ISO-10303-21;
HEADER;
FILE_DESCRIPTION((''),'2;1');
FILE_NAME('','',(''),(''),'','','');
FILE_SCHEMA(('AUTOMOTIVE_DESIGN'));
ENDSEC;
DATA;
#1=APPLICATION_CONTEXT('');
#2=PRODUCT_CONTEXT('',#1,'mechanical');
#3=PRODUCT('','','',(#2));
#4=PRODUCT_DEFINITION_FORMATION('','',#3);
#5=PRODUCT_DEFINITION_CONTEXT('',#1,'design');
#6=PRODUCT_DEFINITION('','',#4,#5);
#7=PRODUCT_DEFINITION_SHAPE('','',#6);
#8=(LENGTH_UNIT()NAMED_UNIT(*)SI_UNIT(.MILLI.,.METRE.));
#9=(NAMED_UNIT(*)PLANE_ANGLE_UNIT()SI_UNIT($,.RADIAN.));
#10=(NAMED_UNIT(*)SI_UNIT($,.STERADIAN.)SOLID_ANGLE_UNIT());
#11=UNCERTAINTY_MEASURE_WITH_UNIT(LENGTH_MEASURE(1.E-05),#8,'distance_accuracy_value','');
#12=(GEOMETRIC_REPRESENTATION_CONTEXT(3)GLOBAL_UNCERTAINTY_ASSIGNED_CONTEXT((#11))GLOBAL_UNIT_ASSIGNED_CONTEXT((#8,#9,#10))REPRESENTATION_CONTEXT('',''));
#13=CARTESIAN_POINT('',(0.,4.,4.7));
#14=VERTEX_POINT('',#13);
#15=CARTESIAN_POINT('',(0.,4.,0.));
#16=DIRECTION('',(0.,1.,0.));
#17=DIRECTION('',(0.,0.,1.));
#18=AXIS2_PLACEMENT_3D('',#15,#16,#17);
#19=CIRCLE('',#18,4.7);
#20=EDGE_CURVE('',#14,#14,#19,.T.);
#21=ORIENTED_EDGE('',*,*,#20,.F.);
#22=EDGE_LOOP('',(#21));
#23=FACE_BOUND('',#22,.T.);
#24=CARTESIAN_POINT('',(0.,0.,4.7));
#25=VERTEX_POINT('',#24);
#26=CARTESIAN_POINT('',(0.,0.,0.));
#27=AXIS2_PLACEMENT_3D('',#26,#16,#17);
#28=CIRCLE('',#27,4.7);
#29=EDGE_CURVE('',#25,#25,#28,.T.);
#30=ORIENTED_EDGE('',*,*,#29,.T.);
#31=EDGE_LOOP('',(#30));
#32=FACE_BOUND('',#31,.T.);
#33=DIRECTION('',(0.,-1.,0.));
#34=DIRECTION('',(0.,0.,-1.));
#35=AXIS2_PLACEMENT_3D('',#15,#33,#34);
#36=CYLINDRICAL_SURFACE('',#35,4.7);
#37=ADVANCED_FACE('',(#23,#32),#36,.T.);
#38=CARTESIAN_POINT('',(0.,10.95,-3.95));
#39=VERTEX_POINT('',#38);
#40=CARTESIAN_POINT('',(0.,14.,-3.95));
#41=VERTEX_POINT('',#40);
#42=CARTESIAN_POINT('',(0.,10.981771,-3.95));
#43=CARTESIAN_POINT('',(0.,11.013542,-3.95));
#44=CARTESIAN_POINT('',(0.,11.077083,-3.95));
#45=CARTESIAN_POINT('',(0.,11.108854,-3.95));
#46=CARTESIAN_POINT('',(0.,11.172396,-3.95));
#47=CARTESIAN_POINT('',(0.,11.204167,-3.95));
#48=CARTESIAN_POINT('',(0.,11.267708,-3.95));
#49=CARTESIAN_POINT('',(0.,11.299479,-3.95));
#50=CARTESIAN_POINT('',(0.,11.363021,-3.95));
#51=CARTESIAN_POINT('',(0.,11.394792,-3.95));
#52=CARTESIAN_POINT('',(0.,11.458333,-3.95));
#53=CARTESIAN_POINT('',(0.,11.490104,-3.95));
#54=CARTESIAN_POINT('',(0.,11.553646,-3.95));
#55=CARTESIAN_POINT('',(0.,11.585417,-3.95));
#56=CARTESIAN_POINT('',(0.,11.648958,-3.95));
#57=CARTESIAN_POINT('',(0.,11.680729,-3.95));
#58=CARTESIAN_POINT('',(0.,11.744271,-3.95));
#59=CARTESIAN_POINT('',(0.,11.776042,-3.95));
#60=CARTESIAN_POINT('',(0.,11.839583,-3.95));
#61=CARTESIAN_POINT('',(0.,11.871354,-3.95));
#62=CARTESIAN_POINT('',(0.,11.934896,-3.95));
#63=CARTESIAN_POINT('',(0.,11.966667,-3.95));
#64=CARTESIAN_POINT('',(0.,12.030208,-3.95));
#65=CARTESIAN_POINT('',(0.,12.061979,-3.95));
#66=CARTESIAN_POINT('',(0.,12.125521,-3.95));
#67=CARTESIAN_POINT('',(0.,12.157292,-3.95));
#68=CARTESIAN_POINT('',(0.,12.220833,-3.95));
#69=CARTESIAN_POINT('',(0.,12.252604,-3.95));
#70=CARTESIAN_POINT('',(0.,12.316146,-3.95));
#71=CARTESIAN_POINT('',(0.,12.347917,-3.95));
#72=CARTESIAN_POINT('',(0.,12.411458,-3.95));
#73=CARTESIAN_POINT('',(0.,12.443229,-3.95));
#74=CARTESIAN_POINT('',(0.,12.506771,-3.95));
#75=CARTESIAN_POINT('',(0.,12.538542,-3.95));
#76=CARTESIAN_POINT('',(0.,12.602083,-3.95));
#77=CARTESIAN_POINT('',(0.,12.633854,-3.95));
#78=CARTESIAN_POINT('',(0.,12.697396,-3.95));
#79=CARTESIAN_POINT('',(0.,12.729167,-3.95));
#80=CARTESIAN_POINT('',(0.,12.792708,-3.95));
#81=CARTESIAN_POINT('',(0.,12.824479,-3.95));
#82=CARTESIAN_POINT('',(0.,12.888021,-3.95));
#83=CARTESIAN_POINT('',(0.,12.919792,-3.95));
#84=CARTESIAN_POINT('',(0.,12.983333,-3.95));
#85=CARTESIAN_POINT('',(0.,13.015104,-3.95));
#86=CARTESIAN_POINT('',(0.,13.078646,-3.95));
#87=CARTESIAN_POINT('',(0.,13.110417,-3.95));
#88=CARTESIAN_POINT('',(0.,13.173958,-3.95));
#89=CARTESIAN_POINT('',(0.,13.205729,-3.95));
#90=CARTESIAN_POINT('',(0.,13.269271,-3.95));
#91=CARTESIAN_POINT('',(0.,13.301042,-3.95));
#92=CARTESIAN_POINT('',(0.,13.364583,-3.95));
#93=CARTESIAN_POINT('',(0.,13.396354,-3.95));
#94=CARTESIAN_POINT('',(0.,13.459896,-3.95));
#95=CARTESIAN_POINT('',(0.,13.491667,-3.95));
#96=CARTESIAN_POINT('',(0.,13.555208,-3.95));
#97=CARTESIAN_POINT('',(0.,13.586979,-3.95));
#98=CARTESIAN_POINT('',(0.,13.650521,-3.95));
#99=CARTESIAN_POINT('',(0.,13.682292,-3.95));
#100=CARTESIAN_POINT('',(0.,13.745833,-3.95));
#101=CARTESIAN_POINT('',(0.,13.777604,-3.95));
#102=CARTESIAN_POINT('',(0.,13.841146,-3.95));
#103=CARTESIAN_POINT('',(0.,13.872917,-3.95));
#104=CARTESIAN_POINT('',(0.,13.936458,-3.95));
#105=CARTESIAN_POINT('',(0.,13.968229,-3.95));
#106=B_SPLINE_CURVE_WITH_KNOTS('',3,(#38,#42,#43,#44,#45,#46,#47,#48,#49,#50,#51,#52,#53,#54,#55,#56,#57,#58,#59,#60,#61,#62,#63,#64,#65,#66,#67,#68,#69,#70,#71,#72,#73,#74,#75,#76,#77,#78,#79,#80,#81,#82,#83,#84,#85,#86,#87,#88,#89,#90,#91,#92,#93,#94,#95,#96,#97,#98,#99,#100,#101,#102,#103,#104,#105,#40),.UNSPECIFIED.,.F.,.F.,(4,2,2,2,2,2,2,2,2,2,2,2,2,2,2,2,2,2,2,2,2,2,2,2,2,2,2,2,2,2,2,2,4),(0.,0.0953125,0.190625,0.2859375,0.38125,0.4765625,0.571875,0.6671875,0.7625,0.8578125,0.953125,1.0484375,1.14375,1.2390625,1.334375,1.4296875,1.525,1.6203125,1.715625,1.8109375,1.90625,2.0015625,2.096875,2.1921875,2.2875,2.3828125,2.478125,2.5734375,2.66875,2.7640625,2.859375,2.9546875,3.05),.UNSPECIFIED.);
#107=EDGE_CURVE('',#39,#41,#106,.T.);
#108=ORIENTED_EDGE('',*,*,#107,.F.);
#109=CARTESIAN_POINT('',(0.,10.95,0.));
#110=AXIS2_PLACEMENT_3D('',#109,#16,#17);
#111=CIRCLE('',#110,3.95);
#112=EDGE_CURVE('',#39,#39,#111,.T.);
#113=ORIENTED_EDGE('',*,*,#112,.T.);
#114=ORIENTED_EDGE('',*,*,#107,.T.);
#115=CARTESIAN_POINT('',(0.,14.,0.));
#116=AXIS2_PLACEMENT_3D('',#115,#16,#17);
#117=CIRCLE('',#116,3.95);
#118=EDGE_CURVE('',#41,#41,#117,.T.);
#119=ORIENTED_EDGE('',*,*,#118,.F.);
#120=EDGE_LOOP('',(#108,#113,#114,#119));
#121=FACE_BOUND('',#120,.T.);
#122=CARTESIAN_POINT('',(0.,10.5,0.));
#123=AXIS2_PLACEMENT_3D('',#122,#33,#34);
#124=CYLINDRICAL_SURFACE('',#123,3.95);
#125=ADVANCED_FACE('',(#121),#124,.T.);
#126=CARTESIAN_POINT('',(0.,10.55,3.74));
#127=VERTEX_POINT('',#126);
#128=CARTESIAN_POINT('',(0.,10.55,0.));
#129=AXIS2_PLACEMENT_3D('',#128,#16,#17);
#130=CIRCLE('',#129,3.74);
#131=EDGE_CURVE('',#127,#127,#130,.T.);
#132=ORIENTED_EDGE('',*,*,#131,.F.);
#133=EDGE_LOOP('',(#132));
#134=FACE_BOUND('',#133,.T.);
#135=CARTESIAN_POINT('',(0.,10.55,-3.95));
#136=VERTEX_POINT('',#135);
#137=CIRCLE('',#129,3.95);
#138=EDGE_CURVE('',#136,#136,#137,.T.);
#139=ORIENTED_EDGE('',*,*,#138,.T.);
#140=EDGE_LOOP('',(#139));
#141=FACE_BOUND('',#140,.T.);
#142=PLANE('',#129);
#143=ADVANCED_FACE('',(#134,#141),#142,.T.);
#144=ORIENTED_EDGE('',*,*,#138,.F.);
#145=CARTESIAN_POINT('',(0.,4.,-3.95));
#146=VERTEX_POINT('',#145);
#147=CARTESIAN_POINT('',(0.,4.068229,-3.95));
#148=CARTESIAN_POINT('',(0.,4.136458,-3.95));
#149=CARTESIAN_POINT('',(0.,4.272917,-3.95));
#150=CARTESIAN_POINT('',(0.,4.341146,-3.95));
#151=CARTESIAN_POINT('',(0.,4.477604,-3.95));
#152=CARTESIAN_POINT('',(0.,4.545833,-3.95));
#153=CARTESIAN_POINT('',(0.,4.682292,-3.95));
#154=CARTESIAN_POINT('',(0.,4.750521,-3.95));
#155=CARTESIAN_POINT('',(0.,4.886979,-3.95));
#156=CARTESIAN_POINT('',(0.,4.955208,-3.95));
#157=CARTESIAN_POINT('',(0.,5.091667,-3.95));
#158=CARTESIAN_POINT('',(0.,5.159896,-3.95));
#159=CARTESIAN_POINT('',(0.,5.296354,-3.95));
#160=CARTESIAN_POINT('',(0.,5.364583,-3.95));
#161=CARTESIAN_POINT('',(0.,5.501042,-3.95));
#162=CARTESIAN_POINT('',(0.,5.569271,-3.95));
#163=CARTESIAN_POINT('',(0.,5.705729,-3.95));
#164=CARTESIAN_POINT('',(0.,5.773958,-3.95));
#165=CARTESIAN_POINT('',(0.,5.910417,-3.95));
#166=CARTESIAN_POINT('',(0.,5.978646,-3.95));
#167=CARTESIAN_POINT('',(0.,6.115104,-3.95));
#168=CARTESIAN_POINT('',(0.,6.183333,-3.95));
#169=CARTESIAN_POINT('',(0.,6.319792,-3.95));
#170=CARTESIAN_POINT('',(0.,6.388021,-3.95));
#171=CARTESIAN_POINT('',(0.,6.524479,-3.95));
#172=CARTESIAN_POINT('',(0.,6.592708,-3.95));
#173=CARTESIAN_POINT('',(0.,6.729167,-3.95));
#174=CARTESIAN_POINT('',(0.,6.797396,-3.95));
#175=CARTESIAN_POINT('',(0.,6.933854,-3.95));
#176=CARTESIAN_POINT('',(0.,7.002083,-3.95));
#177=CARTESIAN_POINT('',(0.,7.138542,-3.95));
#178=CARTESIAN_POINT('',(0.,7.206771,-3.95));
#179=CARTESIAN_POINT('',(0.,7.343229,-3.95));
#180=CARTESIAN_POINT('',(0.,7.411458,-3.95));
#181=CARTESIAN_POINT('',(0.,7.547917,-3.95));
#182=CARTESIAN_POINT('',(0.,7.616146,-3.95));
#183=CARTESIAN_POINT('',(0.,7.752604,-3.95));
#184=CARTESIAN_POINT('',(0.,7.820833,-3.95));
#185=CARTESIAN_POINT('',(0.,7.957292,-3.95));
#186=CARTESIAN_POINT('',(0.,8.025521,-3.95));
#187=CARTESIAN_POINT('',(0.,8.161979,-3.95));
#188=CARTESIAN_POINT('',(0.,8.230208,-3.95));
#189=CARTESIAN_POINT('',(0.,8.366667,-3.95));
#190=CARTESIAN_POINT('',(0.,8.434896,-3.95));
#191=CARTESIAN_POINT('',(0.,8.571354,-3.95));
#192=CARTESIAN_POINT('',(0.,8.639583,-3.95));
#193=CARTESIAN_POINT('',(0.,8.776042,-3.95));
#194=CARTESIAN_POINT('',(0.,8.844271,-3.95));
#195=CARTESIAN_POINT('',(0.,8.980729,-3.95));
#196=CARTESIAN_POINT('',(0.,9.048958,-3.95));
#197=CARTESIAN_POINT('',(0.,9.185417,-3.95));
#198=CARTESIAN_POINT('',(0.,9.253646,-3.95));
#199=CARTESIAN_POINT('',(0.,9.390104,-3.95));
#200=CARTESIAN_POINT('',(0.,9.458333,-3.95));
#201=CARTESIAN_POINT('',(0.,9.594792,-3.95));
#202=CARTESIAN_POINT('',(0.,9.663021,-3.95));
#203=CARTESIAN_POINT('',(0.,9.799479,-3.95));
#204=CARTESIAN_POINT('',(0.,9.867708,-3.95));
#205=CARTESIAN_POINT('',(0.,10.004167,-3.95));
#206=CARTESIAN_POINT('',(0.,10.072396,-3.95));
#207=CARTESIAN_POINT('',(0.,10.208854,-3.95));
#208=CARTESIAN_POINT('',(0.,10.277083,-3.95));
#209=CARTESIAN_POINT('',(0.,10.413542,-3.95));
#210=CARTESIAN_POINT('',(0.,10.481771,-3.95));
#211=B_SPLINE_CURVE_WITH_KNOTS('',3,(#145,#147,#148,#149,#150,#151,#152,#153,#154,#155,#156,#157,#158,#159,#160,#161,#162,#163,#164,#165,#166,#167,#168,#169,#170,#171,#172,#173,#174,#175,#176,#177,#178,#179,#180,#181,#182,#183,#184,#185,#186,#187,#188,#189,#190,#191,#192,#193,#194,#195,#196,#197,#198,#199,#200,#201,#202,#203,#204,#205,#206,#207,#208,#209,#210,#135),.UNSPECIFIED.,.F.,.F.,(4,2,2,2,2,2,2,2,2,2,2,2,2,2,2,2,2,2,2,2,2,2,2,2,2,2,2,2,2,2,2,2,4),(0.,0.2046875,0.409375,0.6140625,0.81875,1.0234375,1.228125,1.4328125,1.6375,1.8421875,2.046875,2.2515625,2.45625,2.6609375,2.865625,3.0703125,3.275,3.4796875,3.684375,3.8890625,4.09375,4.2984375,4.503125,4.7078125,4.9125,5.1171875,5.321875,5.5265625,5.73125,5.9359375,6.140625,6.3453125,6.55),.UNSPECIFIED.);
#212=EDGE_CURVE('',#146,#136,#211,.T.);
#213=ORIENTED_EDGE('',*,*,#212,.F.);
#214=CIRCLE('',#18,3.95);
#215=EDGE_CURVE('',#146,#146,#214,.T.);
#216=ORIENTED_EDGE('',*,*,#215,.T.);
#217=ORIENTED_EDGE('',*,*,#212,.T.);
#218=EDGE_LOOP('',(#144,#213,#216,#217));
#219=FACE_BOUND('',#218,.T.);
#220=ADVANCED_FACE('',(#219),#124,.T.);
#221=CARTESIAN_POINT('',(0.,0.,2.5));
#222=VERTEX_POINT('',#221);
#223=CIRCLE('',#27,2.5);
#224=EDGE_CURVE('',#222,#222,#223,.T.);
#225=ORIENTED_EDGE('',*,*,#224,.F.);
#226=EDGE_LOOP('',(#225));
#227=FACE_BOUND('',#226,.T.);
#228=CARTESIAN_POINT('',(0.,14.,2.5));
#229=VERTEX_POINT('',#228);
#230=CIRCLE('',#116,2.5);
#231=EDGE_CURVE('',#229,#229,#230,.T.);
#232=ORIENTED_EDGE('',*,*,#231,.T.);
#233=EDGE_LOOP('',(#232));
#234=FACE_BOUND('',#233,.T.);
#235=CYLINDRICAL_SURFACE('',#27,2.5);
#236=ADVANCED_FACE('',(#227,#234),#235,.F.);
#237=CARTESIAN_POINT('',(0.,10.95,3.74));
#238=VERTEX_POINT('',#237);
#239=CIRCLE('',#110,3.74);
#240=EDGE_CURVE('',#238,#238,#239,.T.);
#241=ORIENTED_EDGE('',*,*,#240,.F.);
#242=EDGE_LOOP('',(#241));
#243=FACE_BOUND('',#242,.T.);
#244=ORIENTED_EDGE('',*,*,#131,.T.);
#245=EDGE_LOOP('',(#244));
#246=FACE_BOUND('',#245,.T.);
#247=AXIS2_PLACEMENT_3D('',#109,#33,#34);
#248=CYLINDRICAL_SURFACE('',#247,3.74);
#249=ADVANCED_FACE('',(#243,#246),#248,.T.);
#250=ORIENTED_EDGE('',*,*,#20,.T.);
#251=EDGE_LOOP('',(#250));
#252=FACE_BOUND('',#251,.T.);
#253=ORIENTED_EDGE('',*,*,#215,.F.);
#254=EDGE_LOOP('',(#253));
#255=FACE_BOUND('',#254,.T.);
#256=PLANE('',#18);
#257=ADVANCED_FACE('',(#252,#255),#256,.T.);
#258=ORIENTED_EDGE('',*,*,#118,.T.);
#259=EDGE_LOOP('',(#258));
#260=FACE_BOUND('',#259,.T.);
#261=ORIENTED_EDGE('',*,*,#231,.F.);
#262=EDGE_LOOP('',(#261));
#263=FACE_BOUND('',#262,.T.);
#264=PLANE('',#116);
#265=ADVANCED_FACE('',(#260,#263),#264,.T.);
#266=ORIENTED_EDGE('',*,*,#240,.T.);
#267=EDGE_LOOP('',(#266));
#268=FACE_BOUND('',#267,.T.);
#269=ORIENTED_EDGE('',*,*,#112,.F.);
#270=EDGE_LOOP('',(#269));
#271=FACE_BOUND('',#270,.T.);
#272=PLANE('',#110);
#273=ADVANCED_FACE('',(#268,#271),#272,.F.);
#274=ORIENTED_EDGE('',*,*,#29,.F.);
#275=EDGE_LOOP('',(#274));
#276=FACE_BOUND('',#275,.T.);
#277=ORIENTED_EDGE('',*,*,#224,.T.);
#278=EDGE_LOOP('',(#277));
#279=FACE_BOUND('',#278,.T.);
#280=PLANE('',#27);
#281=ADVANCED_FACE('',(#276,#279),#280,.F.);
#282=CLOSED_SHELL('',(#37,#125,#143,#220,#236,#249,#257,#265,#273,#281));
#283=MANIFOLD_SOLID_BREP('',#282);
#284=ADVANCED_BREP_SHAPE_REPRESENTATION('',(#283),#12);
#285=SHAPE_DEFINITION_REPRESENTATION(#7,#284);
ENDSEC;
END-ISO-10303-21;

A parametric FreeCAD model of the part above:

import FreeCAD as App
import Part
import Sketcher

doc = App.newDocument("Part")
body = doc.addObject("PartDesign::Body", "Body")

# Sketch on XZ plane
sketch1 = body.newObject("Sketcher::SketchObject", "Sketch")
sketch1.AttachmentSupport = (doc.getObject("XZ_Plane"), [""])
sketch1.MapMode = "FlatFace"
sketch1.addGeometry(Part.Circle(App.Vector(0, 0, 0), App.Vector(0, 0, 1), 4.7), False)
sketch1.addConstraint([
    Sketcher.Constraint("Coincident", 0, 3, -1, 1),
    Sketcher.Constraint("Diameter", 0, 9.4),
])
pad1 = body.newObject("PartDesign::Pad", "Pad")
pad1.Profile = sketch1
pad1.Length = 4
pad1.Reversed = True

# Sketch on XZ plane
sketch2 = body.newObject("Sketcher::SketchObject", "Sketch001")
sketch2.AttachmentSupport = (doc.getObject("XZ_Plane"), [""])
sketch2.MapMode = "FlatFace"
sketch2.AttachmentOffset = App.Placement(App.Vector(0, 0, -4), App.Rotation())
sketch2.addGeometry(Part.Circle(App.Vector(0, 0, 0), App.Vector(0, 0, 1), 4), False)
sketch2.addConstraint([
    Sketcher.Constraint("Coincident", 0, 3, -1, 1),
    Sketcher.Constraint("Diameter", 0, 7.9),
])
pad2 = body.newObject("PartDesign::Pad", "Pad001")
pad2.Profile = sketch2
pad2.Length = 6.5
pad2.Reversed = True

# Sketch on XZ plane
sketch3 = body.newObject("Sketcher::SketchObject", "Sketch002")
sketch3.AttachmentSupport = (doc.getObject("XZ_Plane"), [""])
sketch3.MapMode = "FlatFace"
sketch3.AttachmentOffset = App.Placement(App.Vector(0, 0, -10.5), App.Rotation())
sketch3.addGeometry(Part.Circle(App.Vector(0, 0, 0), App.Vector(0, 0, 1), 4), False)
sketch3.addConstraint([
    Sketcher.Constraint("Coincident", 0, 3, -1, 1),
    Sketcher.Constraint("Diameter", 0, 7.9),
])
pad3 = body.newObject("PartDesign::Pad", "Pad002")
pad3.Profile = sketch3
pad3.Length = 1
pad3.Reversed = True

# Sketch on XZ plane
sketch4 = body.newObject("Sketcher::SketchObject", "Sketch003")
sketch4.AttachmentSupport = (doc.getObject("XZ_Plane"), [""])
sketch4.MapMode = "FlatFace"
sketch4.AttachmentOffset = App.Placement(App.Vector(0, 0, -11.5), App.Rotation())
sketch4.addGeometry(Part.Circle(App.Vector(0, 0, 0), App.Vector(0, 0, 1), 4), False)
sketch4.addConstraint([
    Sketcher.Constraint("Coincident", 0, 3, -1, 1),
    Sketcher.Constraint("Diameter", 0, 7.9),
])
pad4 = body.newObject("PartDesign::Pad", "Pad003")
pad4.Profile = sketch4
pad4.Length = 2.5
pad4.Reversed = True

# Sketch on XZ plane
sketch5 = body.newObject("Sketcher::SketchObject", "Sketch004")
sketch5.AttachmentSupport = (doc.getObject("XZ_Plane"), [""])
sketch5.MapMode = "FlatFace"
sketch5.AttachmentOffset = App.Placement(App.Vector(0, 0, -14), App.Rotation())
sketch5.addGeometry(Part.Circle(App.Vector(0, 0, 0), App.Vector(0, 0, 1), 2.5), False)
sketch5.addConstraint([
    Sketcher.Constraint("Coincident", 0, 3, -1, 1),
    Sketcher.Constraint("Diameter", 0, 5.0),
])
pocket1 = body.newObject("PartDesign::Pocket", "Pocket")
pocket1.Profile = sketch5
pocket1.Type = "ThroughAll"
pocket1.Reversed = True

# Sketch on XZ plane
sketch6 = body.newObject("Sketcher::SketchObject", "Sketch005")
sketch6.AttachmentSupport = (doc.getObject("XZ_Plane"), [""])
sketch6.MapMode = "FlatFace"
sketch6.AttachmentOffset = App.Placement(App.Vector(0, 0, -10.75), App.Rotation())
sketch6.addGeometry([
    Part.LineSegment(App.Vector(-7.6, -7.6, 0), App.Vector(-7.6, 7.6, 0)),  # 0
    Part.LineSegment(App.Vector(-7.6, 7.6, 0), App.Vector(7.6, 7.6, 0)),  # 1
    Part.LineSegment(App.Vector(7.6, 7.6, 0), App.Vector(7.6, -7.6, 0)),  # 2
    Part.LineSegment(App.Vector(7.6, -7.6, 0), App.Vector(-7.6, -7.6, 0)),  # 3
    Part.Circle(App.Vector(0, 0, 0), App.Vector(0, 0, 1), 3.7),  # 4
], False)
sketch6.addConstraint([
    Sketcher.Constraint("Coincident", 0, 2, 1, 1),
    Sketcher.Constraint("Coincident", 1, 2, 2, 1),
    Sketcher.Constraint("Coincident", 2, 2, 3, 1),
    Sketcher.Constraint("Coincident", 3, 2, 0, 1),
    Sketcher.Constraint("Vertical", 0),
    Sketcher.Constraint("Horizontal", 1),
    Sketcher.Constraint("Vertical", 2),
    Sketcher.Constraint("Horizontal", 3),
    Sketcher.Constraint("Coincident", 4, 3, -1, 1),
    Sketcher.Constraint("Symmetric", 0, 2, 2, 2, -1, 1),
    Sketcher.Constraint("Equal", 3, 0),
    Sketcher.Constraint("Diameter", 4, 7.48),
    Sketcher.Constraint("DistanceX", 1, 1, 1, 2, 15.262),
])
pocket2 = body.newObject("PartDesign::Pocket", "Pocket001")
pocket2.Profile = sketch6
pocket2.Type = "TwoLengths"
pocket2.Length = 0.2
pocket2.Length2 = 0.2

doc.recompute()
